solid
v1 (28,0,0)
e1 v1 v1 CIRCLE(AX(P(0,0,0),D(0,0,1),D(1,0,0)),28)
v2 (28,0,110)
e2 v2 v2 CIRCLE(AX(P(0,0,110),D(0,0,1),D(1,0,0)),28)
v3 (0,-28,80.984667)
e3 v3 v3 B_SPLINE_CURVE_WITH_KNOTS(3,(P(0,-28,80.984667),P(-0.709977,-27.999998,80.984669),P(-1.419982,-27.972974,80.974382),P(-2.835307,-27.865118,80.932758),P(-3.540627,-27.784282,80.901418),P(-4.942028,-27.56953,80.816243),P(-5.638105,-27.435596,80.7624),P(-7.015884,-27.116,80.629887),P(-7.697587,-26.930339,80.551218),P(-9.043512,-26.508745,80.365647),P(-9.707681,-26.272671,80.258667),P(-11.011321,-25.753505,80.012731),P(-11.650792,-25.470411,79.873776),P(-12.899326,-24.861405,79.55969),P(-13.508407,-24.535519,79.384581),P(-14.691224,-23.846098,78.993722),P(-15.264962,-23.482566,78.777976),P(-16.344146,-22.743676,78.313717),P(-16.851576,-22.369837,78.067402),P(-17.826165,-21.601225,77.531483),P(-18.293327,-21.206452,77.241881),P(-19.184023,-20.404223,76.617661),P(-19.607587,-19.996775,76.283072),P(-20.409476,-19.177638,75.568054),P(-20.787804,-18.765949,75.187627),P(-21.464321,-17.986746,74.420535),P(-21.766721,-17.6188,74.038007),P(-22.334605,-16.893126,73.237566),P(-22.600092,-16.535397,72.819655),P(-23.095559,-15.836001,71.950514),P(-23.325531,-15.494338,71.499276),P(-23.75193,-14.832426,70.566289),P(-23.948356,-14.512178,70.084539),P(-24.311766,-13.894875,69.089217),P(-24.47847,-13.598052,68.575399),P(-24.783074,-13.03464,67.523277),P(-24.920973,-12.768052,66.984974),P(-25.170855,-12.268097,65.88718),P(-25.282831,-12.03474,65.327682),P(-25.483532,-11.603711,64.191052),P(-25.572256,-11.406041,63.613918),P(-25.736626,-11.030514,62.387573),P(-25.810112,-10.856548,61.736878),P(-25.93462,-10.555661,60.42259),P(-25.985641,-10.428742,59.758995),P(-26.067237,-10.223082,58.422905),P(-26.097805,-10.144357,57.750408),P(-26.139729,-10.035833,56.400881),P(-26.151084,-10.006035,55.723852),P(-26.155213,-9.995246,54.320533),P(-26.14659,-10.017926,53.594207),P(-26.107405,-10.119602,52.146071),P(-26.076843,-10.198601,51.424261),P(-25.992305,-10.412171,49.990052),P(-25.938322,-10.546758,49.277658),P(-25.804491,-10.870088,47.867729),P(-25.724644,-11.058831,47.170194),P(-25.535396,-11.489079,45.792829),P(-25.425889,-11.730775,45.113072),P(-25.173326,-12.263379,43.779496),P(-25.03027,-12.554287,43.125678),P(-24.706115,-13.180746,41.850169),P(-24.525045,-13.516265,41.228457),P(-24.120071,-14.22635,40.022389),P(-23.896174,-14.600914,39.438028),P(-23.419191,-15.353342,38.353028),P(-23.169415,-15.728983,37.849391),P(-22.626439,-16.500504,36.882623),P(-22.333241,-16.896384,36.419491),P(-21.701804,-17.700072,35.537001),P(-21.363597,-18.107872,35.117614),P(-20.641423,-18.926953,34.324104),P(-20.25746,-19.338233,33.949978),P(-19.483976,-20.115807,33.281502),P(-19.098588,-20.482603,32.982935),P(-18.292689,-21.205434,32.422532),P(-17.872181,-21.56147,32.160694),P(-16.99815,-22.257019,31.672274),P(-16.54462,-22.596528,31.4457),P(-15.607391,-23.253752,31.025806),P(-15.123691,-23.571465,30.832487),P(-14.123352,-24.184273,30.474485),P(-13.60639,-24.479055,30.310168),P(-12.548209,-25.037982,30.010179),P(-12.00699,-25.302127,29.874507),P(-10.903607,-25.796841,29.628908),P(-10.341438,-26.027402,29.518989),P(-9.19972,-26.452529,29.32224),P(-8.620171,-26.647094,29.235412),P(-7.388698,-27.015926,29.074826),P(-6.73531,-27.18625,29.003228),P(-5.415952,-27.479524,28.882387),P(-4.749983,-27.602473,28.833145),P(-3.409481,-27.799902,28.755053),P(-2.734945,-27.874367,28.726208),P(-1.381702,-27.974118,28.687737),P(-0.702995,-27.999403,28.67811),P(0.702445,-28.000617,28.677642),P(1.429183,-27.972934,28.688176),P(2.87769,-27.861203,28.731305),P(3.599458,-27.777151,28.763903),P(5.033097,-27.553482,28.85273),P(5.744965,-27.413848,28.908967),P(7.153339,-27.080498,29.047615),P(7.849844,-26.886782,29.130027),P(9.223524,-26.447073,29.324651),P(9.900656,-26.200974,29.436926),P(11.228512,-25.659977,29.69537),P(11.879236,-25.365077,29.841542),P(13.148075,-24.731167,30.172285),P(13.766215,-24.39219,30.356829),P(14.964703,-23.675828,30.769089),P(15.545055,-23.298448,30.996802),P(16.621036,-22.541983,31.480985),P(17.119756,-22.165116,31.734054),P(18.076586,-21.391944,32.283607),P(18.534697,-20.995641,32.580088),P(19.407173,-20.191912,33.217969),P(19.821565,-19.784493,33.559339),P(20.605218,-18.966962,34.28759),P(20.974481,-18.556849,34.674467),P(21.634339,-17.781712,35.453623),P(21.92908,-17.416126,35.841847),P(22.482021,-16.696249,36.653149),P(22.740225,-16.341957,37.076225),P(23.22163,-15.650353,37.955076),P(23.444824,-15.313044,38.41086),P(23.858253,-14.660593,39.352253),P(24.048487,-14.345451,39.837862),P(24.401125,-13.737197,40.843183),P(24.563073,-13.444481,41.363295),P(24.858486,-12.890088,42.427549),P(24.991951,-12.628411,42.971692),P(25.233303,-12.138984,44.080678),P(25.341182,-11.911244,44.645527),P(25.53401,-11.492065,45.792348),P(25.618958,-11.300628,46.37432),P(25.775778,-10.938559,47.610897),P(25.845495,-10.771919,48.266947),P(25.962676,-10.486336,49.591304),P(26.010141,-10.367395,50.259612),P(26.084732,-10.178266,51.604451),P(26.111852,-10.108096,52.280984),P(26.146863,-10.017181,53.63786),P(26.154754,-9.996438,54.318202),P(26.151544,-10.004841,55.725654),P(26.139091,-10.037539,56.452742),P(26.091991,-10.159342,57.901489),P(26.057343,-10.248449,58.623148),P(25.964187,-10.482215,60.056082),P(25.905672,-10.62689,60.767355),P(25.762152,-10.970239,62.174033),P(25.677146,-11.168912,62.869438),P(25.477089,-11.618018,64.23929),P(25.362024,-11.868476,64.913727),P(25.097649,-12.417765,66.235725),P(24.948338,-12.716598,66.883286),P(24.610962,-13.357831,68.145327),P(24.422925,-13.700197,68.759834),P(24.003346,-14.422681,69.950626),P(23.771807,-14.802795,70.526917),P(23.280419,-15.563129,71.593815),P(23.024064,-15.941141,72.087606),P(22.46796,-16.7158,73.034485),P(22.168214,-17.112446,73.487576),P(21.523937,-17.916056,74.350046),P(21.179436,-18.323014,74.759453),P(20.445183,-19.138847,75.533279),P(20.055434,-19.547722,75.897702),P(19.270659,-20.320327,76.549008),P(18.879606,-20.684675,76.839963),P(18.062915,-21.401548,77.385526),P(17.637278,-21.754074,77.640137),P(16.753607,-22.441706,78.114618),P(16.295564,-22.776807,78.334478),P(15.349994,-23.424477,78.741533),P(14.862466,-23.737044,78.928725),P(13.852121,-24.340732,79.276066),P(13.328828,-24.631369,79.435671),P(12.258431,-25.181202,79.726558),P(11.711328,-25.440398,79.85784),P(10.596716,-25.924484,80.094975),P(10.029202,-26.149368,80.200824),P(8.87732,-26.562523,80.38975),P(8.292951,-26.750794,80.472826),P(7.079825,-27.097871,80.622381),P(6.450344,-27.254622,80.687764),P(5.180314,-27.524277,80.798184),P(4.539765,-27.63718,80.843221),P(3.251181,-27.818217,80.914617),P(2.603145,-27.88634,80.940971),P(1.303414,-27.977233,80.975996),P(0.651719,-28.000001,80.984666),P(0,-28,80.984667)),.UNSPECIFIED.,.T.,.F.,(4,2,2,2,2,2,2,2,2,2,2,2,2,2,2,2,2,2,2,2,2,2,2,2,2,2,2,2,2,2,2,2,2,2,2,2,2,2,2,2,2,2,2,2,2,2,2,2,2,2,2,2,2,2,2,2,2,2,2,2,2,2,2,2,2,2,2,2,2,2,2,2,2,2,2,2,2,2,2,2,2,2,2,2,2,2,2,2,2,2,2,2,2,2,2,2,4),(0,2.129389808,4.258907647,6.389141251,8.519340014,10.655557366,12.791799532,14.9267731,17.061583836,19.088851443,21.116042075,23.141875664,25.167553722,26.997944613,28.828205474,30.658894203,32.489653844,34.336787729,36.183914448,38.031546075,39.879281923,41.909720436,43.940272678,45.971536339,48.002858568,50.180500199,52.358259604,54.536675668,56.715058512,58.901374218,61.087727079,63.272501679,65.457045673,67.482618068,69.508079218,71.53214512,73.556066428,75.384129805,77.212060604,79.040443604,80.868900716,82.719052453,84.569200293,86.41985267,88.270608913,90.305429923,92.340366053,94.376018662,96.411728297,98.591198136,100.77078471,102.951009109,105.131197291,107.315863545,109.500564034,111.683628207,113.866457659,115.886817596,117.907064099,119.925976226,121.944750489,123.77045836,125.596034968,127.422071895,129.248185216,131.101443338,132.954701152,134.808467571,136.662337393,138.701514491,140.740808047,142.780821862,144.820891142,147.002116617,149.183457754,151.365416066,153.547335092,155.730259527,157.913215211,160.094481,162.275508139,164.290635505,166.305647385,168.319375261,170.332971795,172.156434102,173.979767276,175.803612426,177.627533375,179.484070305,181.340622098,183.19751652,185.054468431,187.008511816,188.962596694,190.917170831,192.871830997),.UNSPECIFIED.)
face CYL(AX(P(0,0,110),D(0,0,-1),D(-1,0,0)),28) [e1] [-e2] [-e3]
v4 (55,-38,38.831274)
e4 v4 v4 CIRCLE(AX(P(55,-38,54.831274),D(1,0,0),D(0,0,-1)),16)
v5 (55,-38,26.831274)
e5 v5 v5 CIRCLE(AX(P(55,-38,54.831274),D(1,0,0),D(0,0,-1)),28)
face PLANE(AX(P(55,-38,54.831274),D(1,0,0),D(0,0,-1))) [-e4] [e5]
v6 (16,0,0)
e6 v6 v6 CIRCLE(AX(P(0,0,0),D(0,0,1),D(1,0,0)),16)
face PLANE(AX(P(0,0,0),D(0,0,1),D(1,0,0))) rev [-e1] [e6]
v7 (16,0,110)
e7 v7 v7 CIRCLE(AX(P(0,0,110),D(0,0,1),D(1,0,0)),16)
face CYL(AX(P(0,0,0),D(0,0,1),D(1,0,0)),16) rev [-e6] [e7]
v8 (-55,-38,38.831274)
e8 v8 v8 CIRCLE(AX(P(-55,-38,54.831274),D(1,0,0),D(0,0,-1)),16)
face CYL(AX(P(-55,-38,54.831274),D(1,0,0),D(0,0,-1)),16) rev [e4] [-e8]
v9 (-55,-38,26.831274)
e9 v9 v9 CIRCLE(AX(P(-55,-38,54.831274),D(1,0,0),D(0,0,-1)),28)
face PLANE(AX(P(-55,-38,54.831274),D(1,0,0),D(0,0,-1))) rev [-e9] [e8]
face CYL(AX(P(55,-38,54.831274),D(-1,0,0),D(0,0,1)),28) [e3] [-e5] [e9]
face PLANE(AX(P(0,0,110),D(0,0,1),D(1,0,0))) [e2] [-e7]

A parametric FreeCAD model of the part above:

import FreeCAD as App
import Part
import Sketcher
from FreeCAD import Vector

doc = App.newDocument("Part")
body = doc.addObject("PartDesign::Body", "Body")

sketch1 = body.newObject("Sketcher::SketchObject", "Sketch")
sketch1.AttachmentSupport = (doc.getObject("XY_Plane"), [""])
sketch1.MapMode = "FlatFace"
sketch1.addGeometry(Part.Circle(Vector(0, 0, 0), Vector(0, 0, 1), 28), False)
sketch1.addConstraint([
    Sketcher.Constraint("Coincident", 0, 3, -1, 1),
    Sketcher.Constraint("Diameter", 0, 56.0),
])
pad1 = body.newObject("PartDesign::Pad", "Pad")
pad1.Profile = sketch1
pad1.Length = 110

sketch2 = body.newObject("Sketcher::SketchObject", "Sketch001")
sketch2.AttachmentSupport = (doc.getObject("YZ_Plane"), [""])
sketch2.MapMode = "FlatFace"
sketch2.addGeometry(Part.Circle(Vector(-38, 54.831274, 0), Vector(0, 0, 1), 28), False)
sketch2.addConstraint([
    Sketcher.Constraint("Diameter", 0, 56.0),
    Sketcher.Constraint("DistanceX", 0, 3, -1, 1, 38.0),
    Sketcher.Constraint("DistanceY", -1, 1, 0, 3, 54.831274),
])
pad2 = body.newObject("PartDesign::Pad", "Pad001")
pad2.Profile = sketch2
pad2.Length = 110
pad2.Midplane = True

sketch3 = body.newObject("Sketcher::SketchObject", "Sketch002")
sketch3.AttachmentSupport = (doc.getObject("XY_Plane"), [""])
sketch3.MapMode = "FlatFace"
sketch3.AttachmentOffset = App.Placement(Vector(0, 0, 110), App.Rotation())
sketch3.addGeometry(Part.Circle(Vector(0, 0, 0), Vector(0, 0, 1), 16), False)
sketch3.addConstraint([
    Sketcher.Constraint("Coincident", 0, 3, -1, 1),
    Sketcher.Constraint("Diameter", 0, 32.0),
])
pocket1 = body.newObject("PartDesign::Pocket", "Pocket")
pocket1.Profile = sketch3
pocket1.Type = "ThroughAll"

sketch4 = body.newObject("Sketcher::SketchObject", "Sketch003")
sketch4.AttachmentSupport = (doc.getObject("YZ_Plane"), [""])
sketch4.MapMode = "FlatFace"
sketch4.AttachmentOffset = App.Placement(Vector(0, 0, 55), App.Rotation())
sketch4.addGeometry(Part.Circle(Vector(-38, 54.831274, 0), Vector(0, 0, 1), 16), False)
sketch4.addConstraint([
    Sketcher.Constraint("Diameter", 0, 32.0),
    Sketcher.Constraint("DistanceX", 0, 3, -1, 1, 38.0),
    Sketcher.Constraint("DistanceY", -1, 1, 0, 3, 54.831274),
])
pocket2 = body.newObject("PartDesign::Pocket", "Pocket001")
pocket2.Profile = sketch4
pocket2.Type = "ThroughAll"

doc.recompute()
